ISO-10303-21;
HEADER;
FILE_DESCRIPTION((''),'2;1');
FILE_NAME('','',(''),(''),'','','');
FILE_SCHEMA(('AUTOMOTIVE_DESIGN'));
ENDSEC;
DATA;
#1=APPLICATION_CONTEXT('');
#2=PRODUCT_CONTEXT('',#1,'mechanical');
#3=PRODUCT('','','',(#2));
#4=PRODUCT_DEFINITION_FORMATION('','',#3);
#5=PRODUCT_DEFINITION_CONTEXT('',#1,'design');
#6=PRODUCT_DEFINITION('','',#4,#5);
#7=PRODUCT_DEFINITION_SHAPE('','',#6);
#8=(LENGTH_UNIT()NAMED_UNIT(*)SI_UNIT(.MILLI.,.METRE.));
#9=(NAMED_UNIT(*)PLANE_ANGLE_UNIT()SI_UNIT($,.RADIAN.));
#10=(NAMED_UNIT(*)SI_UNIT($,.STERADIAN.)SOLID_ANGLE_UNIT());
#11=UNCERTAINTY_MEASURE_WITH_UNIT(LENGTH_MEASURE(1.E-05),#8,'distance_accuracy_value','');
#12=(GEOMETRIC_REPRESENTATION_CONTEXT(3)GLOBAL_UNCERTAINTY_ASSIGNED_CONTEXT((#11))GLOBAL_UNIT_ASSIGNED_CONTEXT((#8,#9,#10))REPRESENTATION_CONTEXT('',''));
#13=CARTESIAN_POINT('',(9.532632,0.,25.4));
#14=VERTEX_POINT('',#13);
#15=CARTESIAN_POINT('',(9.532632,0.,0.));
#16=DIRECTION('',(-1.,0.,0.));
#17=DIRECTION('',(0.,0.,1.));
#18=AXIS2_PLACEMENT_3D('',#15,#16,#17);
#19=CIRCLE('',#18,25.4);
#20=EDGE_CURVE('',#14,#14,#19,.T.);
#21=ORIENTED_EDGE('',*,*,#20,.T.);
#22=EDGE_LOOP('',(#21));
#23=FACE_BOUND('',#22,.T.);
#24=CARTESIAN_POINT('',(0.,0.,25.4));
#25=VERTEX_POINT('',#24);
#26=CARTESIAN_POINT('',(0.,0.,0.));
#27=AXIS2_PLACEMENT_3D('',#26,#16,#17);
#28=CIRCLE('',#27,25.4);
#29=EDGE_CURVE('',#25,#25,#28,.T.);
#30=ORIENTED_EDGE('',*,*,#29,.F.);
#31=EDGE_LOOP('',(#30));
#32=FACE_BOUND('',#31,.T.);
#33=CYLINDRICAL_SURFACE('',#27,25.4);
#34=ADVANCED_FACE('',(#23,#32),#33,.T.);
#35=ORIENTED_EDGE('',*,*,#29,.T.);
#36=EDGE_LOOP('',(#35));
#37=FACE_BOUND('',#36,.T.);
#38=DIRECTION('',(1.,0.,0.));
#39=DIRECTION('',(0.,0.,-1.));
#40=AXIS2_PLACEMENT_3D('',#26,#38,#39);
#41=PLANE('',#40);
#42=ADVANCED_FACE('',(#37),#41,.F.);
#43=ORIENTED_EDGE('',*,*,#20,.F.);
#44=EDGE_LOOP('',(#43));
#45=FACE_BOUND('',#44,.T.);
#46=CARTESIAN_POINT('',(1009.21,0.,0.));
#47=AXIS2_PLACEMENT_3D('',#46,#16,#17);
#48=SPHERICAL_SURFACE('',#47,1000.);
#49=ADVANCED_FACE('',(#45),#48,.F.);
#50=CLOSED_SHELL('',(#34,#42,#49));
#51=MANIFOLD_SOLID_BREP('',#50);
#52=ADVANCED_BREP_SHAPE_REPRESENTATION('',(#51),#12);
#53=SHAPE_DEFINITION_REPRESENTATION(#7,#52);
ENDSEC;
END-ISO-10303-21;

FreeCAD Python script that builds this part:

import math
import FreeCAD as App
import Part
import Sketcher
Q = App.Units.Quantity

doc = App.newDocument("Part")
body = doc.addObject("PartDesign::Body", "Body")

# Sketch on XZ plane
sketch1 = doc.addObject("Sketcher::SketchObject", "Sketch")
body.addObject(sketch1)
sketch1.AttachmentSupport = (doc.XZ_Plane, [""])
sketch1.MapMode = "FlatFace"
sketch1.addGeometry([
    Part.LineSegment(App.Vector(0, 0, 0), App.Vector(9, 0, 0)),
    Part.ArcOfCircle(Part.Circle(App.Vector(1009, 0, 0), App.Vector(0, 0, 1), 1000), math.radians(-180), math.radians(-178.54)),
    Part.LineSegment(App.Vector(10, -25, 0), App.Vector(0, -25, 0)),
    Part.LineSegment(App.Vector(0, -25, 0), App.Vector(0, 0, 0)),
], False)
sketch1.addConstraint([
    Sketcher.Constraint("Coincident", 0, 2, 1, 1),
    Sketcher.Constraint("Coincident", 1, 2, 2, 1),
    Sketcher.Constraint("Coincident", 2, 2, 3, 1),
    Sketcher.Constraint("Coincident", 3, 2, 0, 1),
    Sketcher.Constraint("Horizontal", 0),
    Sketcher.Constraint("Horizontal", 2),
    Sketcher.Constraint("Vertical", 3),
    Sketcher.Constraint("Coincident", 3, 2, -1, 1),
    Sketcher.Constraint("PointOnObject", 1, 3, -1),
    Sketcher.Constraint("DistanceY", 3, 1, 3, 2, Q("1 in")),
    Sketcher.Constraint("DistanceX", 0, 1, 0, 2, 9.21),
    Sketcher.Constraint("Radius", 1, 1000.000004),
])
revolution = doc.addObject("PartDesign::Revolution", "Revolution")
body.addObject(revolution)
revolution.Profile = sketch1
revolution.ReferenceAxis = (sketch1, ["H_Axis"])
revolution.Angle = 360

doc.recompute()
